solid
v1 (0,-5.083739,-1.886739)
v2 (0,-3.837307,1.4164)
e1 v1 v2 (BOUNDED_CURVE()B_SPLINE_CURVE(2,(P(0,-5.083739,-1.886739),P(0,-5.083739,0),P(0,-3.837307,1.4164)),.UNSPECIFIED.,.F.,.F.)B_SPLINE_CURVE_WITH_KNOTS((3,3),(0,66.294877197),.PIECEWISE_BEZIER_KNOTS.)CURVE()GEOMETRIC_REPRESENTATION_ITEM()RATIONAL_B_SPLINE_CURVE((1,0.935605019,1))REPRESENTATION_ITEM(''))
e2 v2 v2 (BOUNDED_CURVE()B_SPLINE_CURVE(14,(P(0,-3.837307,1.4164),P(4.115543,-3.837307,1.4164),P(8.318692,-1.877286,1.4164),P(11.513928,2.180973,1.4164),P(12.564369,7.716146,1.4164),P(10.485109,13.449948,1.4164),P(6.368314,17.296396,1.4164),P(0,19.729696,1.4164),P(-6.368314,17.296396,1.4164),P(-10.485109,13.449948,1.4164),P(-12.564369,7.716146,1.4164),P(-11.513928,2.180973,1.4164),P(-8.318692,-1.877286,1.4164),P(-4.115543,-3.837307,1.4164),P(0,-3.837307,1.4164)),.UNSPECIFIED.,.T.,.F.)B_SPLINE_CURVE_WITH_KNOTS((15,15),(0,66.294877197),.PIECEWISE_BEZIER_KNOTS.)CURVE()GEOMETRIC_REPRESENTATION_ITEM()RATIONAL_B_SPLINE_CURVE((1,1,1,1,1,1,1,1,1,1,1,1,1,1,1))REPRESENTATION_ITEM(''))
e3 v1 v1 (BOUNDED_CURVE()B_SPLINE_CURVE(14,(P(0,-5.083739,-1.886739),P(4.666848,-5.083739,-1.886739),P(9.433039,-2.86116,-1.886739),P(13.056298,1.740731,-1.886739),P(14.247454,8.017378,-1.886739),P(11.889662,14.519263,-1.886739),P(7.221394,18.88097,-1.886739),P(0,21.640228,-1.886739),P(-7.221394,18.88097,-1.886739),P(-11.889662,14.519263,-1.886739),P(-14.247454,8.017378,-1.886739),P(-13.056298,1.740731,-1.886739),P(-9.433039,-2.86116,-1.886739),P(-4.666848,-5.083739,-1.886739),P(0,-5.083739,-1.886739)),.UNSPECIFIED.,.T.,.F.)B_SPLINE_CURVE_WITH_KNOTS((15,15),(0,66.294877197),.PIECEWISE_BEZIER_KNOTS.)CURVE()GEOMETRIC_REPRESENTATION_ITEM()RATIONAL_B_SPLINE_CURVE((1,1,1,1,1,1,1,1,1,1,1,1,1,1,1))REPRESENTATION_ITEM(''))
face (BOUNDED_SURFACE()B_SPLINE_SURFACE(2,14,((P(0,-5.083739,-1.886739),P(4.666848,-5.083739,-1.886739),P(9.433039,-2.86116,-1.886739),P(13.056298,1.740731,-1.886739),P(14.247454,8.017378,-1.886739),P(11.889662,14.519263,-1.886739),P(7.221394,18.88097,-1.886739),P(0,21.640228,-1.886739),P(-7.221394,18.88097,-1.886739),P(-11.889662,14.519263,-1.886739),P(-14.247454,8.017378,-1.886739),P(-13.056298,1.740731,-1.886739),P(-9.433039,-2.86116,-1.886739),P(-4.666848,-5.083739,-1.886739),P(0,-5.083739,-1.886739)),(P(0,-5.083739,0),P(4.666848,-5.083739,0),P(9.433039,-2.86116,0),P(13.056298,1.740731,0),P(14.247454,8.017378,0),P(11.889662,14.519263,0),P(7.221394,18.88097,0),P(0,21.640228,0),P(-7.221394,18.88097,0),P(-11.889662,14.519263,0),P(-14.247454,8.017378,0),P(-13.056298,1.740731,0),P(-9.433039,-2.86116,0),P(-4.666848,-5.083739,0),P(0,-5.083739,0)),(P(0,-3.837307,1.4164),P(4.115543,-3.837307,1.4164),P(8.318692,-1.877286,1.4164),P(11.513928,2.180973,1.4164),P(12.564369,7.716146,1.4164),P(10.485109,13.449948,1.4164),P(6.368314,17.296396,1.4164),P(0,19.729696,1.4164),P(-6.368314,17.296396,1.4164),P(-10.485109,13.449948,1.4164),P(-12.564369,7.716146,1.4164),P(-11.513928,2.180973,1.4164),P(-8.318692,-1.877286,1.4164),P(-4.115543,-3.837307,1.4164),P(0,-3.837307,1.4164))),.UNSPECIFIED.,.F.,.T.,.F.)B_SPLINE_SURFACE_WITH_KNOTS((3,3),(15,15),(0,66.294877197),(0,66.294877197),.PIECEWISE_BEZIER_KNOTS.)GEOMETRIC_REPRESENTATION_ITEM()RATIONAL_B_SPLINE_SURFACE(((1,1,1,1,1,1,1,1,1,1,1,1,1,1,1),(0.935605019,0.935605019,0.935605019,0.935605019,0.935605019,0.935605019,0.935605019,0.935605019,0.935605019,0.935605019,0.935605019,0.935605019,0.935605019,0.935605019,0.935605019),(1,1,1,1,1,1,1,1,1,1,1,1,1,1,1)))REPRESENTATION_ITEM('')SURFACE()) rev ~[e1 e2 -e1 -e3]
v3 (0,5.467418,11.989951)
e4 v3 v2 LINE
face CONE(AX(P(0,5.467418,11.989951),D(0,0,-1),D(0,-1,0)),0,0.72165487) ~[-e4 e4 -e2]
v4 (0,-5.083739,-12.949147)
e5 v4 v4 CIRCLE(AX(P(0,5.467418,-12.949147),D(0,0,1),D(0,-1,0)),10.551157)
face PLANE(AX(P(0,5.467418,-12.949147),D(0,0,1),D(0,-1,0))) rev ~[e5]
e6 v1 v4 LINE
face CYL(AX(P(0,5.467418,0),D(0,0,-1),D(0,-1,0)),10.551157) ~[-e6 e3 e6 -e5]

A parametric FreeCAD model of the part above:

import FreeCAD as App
import Part
import Sketcher
from FreeCAD import Vector


def edges_at(feature, points):
    """Names of the edges that pass closest to the given points."""
    edges = feature.Shape.Edges
    near = lambda p: min(range(len(edges)), key=lambda i: edges[i].distToShape(Part.Vertex(*p))[0])
    return sorted({f"Edge{near(p) + 1}" for p in points})

doc = App.newDocument("Part")
body = doc.addObject("PartDesign::Body", "Body")

# Sketch on YZ plane
sketch1 = body.newObject("Sketcher::SketchObject", "Sketch")
sketch1.AttachmentSupport = (doc.getObject("YZ_Plane"), [""])
sketch1.MapMode = "FlatFace"
sketch1.addGeometry([
    Part.LineSegment(Vector(-5.083739, 0, 0), Vector(-5.083739, -12.949147, 0)),
    Part.LineSegment(Vector(-5.083739, -12.949147, 0), Vector(5.467418, -12.949147, 0)),
    Part.LineSegment(Vector(5.467418, -12.949147, 0), Vector(5.467418, 11.989951, 0)),
    Part.LineSegment(Vector(5.467418, 11.989951, 0), Vector(-5.083739, 0, 0)),
], False)
sketch1.addGeometry(Part.LineSegment(Vector(5.467418, -12.949147, 0), Vector(5.467418, 11.989951, 0)), True)  # axis
sketch1.addConstraint([
    Sketcher.Constraint("Coincident", 0, 2, 1, 1),
    Sketcher.Constraint("Coincident", 1, 2, 2, 1),
    Sketcher.Constraint("Coincident", 2, 2, 3, 1),
    Sketcher.Constraint("Coincident", 3, 2, 0, 1),
    Sketcher.Constraint("Vertical", 0),
    Sketcher.Constraint("Horizontal", 1),
    Sketcher.Constraint("Vertical", 2),
    Sketcher.Constraint("Vertical", 4),
    Sketcher.Constraint("Coincident", 4, 1, 1, 2),
    Sketcher.Constraint("PointOnObject", 3, 2, -1),
    Sketcher.Constraint("Equal", 2, 4),
    Sketcher.Constraint("DistanceY", 2, 1, 2, 2, 24.939098),
    Sketcher.Constraint("DistanceX", 1, 1, 1, 2, 10.551157),
    Sketcher.Constraint("DistanceY", 0, 2, 0, 1, 12.949147),
    Sketcher.Constraint("DistanceX", 0, 2, -1, 1, 5.083739),
])
revolution = body.newObject("PartDesign::Revolution", "Revolution")
revolution.Profile = sketch1
revolution.ReferenceAxis = (sketch1, ["Axis0"])
revolution.Angle = 360
doc.recompute()

fillet = body.newObject("PartDesign::Fillet", "Fillet")
fillet.Base = (revolution, edges_at(revolution, [(0, 16.019, 0)]))
fillet.Radius = 5

doc.recompute()
